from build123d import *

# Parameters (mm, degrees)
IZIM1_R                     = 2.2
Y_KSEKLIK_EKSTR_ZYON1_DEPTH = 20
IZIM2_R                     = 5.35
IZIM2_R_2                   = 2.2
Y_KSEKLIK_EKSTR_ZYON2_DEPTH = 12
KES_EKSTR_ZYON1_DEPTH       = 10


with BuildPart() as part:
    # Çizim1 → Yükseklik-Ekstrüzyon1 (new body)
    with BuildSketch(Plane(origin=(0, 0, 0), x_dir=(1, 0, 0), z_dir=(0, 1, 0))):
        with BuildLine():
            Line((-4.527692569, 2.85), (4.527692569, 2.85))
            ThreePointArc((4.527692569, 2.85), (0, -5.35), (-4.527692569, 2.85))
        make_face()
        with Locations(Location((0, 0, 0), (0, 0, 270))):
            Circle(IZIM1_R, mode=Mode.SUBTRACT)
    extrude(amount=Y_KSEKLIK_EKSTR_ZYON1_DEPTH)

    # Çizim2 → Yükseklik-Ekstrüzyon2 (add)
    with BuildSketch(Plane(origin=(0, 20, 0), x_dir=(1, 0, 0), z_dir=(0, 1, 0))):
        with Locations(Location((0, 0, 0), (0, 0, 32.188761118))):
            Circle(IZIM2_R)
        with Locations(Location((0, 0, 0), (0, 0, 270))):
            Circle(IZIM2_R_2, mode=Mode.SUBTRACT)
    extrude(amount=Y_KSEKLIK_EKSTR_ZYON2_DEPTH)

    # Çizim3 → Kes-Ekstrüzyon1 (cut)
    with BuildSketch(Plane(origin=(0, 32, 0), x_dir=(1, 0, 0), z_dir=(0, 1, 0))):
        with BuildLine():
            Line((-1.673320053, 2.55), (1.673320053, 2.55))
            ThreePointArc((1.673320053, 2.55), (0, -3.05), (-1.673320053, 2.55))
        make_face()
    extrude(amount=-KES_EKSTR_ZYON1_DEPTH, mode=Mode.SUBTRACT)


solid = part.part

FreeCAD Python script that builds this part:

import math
import FreeCAD as App
import Part
import Sketcher

V = App.Vector

doc = App.newDocument("Part")
body = doc.addObject("PartDesign::Body", "Body")

sketch1 = body.newObject("Sketcher::SketchObject", "Sketch")
sketch1.AttachmentSupport = (doc.getObject("XZ_Plane"), [""])
sketch1.MapMode = "FlatFace"
sketch1.addGeometry([
    Part.LineSegment(V(4.5, -2.9, 0), V(-4.5, -2.9, 0)),
    Part.ArcOfCircle(Part.Circle(V(0, 0, 0), V(0, 0, 1), 5.3), math.radians(-32), math.radians(212)),
    Part.Circle(V(0, 0, 0), V(0, 0, 1), 2.2),
], False)
sketch1.addConstraint([
    Sketcher.Constraint("Coincident", 0, 1, 1, 1),
    Sketcher.Constraint("Coincident", 1, 2, 0, 2),
    Sketcher.Constraint("Horizontal", 0),
    Sketcher.Constraint("Coincident", 1, 3, -1, 1),
    Sketcher.Constraint("Coincident", 2, 3, -1, 1),
    Sketcher.Constraint("Diameter", 2, 4.4),
    Sketcher.Constraint("Radius", 1, 5.35),
    Sketcher.Constraint("DistanceY", 0, 1, -1, 1, 2.85),
])
pad1 = body.newObject("PartDesign::Pad", "Pad")
pad1.Profile = sketch1
pad1.Length = 20
pad1.Reversed = True

sketch2 = body.newObject("Sketcher::SketchObject", "Sketch001")
sketch2.AttachmentSupport = (doc.getObject("XZ_Plane"), [""])
sketch2.MapMode = "FlatFace"
sketch2.AttachmentOffset = App.Placement(V(0, 0, -20), App.Rotation())
sketch2.addGeometry([
    Part.Circle(V(0, 0, 0), V(0, 0, 1), 5.3),
    Part.Circle(V(0, 0, 0), V(0, 0, 1), 2.2),
], False)
sketch2.addConstraint([
    Sketcher.Constraint("Coincident", 0, 3, -1, 1),
    Sketcher.Constraint("Coincident", 1, 3, -1, 1),
    Sketcher.Constraint("Diameter", 0, 10.7),
    Sketcher.Constraint("Diameter", 1, 4.4),
])
pad2 = body.newObject("PartDesign::Pad", "Pad001")
pad2.Profile = sketch2
pad2.Length = 12
pad2.Reversed = True

sketch3 = body.newObject("Sketcher::SketchObject", "Sketch002")
sketch3.AttachmentSupport = (doc.getObject("XZ_Plane"), [""])
sketch3.MapMode = "FlatFace"
sketch3.AttachmentOffset = App.Placement(V(0, 0, -32), App.Rotation())
sketch3.addGeometry([
    Part.LineSegment(V(1.7, -2.5, 0), V(-1.7, -2.5, 0)),
    Part.ArcOfCircle(Part.Circle(V(0, 0, 0), V(0, 0, 1), 3), math.radians(-57), math.radians(237)),
], False)
sketch3.addConstraint([
    Sketcher.Constraint("Coincident", 0, 1, 1, 1),
    Sketcher.Constraint("Coincident", 1, 2, 0, 2),
    Sketcher.Constraint("Horizontal", 0),
    Sketcher.Constraint("Coincident", 1, 3, -1, 1),
    Sketcher.Constraint("Radius", 1, 3.05),
    Sketcher.Constraint("DistanceY", 0, 1, -1, 1, 2.55),
])
pocket1 = body.newObject("PartDesign::Pocket", "Pocket")
pocket1.Profile = sketch3
pocket1.Length = 10
pocket1.Reversed = True

doc.recompute()
